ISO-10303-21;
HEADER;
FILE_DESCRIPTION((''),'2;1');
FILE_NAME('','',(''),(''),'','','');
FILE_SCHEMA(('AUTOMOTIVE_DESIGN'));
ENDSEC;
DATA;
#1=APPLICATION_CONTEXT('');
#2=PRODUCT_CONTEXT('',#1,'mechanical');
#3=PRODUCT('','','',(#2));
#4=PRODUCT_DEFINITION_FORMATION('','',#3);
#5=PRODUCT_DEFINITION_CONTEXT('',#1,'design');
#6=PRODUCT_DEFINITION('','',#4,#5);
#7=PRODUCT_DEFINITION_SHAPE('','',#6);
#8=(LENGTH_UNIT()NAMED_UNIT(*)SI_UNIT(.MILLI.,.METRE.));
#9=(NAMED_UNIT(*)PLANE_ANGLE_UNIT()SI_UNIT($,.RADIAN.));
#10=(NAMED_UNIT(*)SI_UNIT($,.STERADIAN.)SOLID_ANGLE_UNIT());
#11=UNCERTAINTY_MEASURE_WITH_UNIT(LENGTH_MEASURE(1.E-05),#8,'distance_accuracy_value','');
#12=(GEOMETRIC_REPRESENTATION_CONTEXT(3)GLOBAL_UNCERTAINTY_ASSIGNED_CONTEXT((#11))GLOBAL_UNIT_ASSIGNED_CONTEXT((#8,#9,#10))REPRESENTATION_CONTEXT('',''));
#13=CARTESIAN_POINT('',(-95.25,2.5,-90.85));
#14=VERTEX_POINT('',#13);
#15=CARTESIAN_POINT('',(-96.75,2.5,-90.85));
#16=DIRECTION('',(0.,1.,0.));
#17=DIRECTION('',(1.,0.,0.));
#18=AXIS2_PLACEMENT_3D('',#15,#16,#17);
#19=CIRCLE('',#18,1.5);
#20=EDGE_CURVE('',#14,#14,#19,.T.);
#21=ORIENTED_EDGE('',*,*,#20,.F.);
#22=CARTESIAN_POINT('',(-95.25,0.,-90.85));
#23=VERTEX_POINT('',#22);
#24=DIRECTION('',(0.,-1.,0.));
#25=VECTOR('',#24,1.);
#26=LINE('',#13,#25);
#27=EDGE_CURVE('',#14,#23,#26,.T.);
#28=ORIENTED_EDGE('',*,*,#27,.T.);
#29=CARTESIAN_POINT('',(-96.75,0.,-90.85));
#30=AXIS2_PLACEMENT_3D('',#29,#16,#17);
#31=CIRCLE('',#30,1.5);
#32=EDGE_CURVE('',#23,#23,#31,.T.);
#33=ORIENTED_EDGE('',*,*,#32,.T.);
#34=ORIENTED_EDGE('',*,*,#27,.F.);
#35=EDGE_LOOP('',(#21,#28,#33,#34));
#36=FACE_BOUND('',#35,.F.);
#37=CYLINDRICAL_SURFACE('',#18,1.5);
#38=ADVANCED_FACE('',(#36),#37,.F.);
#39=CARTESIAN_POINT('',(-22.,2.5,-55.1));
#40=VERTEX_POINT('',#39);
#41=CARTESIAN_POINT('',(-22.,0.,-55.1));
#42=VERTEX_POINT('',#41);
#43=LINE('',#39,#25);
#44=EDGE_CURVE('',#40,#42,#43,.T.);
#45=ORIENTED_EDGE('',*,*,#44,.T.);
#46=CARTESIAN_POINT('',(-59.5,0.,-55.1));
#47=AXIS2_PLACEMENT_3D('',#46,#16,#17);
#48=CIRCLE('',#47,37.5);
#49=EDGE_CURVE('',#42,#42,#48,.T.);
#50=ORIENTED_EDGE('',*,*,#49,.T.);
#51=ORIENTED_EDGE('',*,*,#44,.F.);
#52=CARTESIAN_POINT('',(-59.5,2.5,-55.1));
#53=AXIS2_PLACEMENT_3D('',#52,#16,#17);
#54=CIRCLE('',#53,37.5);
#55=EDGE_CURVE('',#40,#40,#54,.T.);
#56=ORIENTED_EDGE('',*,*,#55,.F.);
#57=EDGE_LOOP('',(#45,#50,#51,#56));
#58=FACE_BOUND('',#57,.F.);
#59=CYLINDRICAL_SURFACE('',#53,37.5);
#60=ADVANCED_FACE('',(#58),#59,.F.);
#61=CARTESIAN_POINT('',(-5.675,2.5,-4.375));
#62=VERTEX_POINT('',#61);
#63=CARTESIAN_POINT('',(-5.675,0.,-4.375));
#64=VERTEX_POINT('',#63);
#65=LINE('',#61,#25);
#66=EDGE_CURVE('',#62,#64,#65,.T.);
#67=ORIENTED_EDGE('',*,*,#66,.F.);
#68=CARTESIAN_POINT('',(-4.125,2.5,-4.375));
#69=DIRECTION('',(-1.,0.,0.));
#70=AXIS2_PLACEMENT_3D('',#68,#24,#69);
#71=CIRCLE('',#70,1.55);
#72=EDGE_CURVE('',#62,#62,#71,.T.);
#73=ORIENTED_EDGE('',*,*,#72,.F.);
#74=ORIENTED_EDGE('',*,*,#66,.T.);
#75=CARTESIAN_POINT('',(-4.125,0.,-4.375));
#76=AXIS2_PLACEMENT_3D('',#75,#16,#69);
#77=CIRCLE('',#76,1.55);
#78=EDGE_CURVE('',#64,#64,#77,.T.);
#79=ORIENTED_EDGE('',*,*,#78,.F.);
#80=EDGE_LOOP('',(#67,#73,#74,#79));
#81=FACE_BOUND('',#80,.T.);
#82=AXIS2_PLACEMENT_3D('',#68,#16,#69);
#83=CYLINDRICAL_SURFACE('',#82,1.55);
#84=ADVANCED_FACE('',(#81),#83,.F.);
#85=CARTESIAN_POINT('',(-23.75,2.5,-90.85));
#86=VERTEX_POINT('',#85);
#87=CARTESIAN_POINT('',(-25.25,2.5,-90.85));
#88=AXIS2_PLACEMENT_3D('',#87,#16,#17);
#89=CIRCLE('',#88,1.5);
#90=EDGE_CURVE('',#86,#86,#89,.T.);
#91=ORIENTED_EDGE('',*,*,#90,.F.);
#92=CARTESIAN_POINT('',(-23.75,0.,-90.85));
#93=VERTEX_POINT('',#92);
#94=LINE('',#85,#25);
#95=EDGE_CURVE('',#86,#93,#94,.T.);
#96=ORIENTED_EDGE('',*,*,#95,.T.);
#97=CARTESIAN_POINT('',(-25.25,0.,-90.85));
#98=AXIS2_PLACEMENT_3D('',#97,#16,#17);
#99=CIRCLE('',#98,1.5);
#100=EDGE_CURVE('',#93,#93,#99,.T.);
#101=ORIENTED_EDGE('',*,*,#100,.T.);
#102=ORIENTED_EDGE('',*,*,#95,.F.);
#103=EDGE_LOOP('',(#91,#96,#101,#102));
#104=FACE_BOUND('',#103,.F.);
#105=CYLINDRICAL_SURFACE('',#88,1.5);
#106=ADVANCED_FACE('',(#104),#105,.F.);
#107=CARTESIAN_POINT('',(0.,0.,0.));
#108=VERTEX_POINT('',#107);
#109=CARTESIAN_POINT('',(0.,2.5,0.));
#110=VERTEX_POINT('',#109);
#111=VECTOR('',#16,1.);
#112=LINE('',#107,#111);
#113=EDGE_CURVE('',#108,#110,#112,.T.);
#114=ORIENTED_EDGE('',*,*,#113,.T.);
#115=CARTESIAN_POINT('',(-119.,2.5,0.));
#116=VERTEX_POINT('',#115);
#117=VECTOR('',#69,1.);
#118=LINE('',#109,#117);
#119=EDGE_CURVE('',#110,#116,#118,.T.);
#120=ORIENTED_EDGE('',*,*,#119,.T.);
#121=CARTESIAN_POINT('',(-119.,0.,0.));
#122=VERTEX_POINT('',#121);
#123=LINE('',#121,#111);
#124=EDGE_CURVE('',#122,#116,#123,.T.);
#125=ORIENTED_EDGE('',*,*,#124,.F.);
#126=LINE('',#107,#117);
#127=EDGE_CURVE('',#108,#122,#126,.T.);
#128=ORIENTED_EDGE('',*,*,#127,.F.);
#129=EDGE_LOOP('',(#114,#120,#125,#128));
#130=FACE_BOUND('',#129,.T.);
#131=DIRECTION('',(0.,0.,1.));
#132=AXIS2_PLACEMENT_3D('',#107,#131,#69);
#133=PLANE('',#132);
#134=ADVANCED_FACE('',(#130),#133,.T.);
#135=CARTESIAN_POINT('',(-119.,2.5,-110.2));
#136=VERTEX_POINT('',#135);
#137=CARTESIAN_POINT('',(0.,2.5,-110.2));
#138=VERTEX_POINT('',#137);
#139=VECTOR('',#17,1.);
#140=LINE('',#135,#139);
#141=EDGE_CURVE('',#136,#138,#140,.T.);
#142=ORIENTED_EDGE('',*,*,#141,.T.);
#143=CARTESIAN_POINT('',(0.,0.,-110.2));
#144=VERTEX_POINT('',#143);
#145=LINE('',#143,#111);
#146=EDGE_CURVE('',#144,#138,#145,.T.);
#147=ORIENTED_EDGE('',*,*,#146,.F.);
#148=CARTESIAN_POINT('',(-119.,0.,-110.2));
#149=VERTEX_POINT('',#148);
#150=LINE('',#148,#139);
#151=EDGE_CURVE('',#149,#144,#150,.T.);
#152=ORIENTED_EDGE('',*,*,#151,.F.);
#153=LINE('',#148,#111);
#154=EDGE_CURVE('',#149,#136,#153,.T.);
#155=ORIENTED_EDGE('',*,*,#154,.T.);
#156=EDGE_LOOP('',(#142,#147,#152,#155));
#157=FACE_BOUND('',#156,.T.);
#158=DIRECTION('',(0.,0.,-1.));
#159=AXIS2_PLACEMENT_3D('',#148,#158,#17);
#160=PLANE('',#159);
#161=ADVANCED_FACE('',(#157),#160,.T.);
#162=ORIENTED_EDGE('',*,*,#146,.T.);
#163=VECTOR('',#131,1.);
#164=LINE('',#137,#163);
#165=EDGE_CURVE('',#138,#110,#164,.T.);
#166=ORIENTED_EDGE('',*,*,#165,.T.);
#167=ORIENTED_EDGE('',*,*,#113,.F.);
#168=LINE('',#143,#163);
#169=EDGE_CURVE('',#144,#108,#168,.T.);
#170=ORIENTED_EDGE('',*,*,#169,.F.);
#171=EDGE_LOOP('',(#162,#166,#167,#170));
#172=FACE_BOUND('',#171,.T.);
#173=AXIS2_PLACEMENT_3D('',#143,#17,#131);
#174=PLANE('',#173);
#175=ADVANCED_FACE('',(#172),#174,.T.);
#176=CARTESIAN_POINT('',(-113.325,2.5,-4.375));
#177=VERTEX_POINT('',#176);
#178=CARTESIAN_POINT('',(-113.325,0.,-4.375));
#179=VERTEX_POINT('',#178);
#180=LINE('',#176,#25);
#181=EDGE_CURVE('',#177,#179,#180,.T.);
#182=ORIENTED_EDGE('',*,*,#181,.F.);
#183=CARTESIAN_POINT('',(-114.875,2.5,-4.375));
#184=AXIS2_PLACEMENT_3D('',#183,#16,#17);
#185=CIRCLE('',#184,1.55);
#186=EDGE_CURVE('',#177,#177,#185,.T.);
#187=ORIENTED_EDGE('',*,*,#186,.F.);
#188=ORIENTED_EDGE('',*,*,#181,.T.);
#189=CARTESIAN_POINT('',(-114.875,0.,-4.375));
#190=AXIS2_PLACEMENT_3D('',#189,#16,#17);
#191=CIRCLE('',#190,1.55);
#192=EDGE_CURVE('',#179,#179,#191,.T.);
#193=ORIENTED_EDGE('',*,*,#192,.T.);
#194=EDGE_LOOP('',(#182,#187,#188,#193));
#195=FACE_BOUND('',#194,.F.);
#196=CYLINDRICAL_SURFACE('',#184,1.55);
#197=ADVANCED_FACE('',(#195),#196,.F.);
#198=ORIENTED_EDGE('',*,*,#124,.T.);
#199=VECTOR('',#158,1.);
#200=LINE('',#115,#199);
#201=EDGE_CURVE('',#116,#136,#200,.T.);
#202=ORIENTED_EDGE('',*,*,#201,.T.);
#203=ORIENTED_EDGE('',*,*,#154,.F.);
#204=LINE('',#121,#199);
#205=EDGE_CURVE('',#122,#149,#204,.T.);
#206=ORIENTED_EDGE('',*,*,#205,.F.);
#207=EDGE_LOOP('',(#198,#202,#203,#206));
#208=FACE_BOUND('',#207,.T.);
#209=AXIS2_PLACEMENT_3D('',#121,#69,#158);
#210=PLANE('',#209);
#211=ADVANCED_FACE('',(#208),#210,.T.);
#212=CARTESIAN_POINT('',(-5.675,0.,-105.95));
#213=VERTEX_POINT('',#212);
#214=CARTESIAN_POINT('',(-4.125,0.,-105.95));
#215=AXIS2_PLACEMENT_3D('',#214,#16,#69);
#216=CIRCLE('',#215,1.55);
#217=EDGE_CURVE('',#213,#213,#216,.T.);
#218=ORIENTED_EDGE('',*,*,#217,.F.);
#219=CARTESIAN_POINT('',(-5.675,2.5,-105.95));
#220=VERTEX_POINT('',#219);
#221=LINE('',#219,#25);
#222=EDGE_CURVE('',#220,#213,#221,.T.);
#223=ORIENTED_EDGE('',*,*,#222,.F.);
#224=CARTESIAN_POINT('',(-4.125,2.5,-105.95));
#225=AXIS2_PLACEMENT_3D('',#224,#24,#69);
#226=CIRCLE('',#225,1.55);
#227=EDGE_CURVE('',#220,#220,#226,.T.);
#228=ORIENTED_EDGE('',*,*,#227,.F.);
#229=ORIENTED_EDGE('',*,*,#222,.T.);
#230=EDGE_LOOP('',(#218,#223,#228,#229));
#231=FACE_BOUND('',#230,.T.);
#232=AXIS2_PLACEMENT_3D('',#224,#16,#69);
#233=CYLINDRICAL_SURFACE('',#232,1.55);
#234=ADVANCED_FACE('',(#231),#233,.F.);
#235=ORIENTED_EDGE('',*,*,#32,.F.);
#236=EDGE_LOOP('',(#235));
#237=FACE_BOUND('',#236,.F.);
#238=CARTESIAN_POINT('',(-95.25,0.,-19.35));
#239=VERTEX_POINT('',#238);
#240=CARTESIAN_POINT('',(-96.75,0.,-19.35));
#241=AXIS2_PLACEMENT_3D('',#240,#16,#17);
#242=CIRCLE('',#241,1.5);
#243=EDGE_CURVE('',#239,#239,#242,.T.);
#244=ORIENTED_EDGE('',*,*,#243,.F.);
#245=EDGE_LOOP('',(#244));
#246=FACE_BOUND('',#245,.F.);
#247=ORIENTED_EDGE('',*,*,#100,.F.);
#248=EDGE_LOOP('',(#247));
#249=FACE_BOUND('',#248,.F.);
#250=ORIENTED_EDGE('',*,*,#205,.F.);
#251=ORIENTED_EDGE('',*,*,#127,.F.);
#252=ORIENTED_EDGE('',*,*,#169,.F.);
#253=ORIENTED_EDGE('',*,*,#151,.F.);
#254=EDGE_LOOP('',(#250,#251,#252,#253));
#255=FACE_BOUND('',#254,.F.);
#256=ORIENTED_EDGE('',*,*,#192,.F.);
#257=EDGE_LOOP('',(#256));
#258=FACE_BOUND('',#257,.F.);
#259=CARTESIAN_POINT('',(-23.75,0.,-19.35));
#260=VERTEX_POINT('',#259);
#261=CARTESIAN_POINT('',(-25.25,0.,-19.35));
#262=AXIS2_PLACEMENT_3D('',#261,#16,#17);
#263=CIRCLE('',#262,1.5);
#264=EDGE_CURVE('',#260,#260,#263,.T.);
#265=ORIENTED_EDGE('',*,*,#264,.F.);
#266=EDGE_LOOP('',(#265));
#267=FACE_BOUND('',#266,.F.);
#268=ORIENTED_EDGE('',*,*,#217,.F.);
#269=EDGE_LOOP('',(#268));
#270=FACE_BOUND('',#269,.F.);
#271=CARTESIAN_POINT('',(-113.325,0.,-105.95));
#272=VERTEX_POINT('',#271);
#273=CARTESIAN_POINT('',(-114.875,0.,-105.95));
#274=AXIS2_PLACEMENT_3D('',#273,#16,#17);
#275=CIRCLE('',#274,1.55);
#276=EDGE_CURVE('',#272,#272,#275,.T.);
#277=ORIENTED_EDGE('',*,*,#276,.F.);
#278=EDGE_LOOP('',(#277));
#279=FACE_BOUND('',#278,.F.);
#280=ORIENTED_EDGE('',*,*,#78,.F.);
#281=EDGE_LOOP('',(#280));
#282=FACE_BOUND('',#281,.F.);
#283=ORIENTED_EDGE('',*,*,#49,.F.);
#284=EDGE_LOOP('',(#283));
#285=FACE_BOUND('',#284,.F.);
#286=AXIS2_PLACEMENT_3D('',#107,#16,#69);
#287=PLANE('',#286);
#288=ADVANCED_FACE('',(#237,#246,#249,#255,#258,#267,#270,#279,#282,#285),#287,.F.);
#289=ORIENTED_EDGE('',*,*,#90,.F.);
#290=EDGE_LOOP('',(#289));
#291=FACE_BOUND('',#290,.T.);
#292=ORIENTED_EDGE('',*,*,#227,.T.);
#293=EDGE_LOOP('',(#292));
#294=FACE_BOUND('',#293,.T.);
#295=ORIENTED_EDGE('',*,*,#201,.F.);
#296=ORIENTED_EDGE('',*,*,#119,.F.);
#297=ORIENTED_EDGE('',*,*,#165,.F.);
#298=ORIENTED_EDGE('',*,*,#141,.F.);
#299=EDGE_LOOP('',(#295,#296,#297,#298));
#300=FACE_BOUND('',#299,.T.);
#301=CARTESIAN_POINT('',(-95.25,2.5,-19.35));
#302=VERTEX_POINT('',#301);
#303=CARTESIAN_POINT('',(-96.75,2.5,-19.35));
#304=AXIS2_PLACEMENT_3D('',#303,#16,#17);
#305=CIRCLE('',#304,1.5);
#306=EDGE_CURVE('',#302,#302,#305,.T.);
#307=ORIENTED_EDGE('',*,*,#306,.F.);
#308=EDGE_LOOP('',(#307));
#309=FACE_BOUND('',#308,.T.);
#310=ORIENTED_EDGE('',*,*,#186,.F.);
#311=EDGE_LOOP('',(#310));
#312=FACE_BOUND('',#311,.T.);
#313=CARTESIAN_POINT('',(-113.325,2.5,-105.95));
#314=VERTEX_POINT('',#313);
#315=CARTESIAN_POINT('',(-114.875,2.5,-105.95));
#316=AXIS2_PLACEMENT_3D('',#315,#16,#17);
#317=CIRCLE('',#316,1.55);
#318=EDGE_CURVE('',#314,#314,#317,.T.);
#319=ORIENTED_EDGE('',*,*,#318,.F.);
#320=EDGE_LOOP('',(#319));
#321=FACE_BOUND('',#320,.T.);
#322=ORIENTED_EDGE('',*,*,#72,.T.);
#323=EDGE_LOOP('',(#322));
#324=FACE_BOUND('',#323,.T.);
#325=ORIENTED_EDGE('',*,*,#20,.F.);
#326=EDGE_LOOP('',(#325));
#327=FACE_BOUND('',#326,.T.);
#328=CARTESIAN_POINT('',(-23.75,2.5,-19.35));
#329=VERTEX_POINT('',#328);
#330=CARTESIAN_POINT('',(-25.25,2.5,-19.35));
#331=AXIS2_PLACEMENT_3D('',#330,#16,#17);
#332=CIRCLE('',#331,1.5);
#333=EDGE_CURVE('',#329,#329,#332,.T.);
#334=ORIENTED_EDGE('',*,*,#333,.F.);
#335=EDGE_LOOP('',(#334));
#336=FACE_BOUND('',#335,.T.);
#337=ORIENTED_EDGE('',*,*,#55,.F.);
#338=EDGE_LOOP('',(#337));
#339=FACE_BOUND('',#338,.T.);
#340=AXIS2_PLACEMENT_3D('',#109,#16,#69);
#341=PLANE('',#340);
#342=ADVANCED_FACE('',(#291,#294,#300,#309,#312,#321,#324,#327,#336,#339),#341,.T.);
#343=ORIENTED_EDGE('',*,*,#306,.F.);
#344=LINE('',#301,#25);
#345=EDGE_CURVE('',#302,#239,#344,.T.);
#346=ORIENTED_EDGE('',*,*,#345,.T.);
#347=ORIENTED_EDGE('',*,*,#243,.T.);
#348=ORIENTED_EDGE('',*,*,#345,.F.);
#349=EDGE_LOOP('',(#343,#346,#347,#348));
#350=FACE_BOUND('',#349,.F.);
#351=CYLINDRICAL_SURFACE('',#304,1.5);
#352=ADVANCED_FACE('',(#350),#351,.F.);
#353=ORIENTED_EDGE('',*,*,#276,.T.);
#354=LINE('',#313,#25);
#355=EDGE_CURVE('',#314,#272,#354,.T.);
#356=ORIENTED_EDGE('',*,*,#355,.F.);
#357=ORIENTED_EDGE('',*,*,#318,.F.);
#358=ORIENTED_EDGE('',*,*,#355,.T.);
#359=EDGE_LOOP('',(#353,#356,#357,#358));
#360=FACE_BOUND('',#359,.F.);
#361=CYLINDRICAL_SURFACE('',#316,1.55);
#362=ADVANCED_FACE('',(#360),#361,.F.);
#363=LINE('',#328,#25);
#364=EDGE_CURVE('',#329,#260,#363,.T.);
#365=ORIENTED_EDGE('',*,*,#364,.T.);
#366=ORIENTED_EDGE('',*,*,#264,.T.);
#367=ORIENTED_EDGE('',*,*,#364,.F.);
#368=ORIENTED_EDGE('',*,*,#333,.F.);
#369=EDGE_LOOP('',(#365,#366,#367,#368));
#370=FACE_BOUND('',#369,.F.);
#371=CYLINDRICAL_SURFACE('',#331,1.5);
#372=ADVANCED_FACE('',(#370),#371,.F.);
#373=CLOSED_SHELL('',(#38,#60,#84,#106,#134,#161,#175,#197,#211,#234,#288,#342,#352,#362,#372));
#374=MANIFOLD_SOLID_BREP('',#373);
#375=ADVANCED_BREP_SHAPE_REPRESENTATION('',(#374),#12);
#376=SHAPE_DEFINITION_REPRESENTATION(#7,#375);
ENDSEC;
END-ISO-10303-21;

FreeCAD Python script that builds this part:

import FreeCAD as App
import Part
import Sketcher

V = App.Vector


def add_polygon(sketch, points):
    """Adds a closed chain of lines whose ends are joined by coincident constraints."""
    first, n = sketch.GeometryCount, len(points)
    for a, b in zip(points, points[1:] + points[:1]):
        sketch.addGeometry(Part.LineSegment(App.Vector(*a, 0), App.Vector(*b, 0)), False)
    for i in range(n):
        sketch.addConstraint(Sketcher.Constraint("Coincident", first + i, 2, first + (i + 1) % n, 1))

doc = App.newDocument("Part")
params = doc.addObject("Spreadsheet::Sheet", "Params")
for row, (alias, value) in enumerate([
    ("sketch1_width", "119 mm"),
    ("sketch1_height", "110.2 mm"),
    ("pad1_length", "2.5 mm"),
    ("sketch2_diameter", "3.1 mm"),
    ("sketch3_diameter", "3 mm"),
    ("sketch3_diameter2", "75 mm"),
], start=1):
    params.set(f"A{row}", alias)
    params.set(f"B{row}", "=" + value)
    params.setAlias(f"B{row}", alias)

body = doc.addObject("PartDesign::Body", "Body")

# Sketch on XZ plane
sketch1 = doc.addObject("Sketcher::SketchObject", "Sketch")
body.addObject(sketch1)
sketch1.AttachmentSupport = (doc.XZ_Plane, [""])
sketch1.MapMode = "FlatFace"
add_polygon(sketch1, [(-119, 0), (0, 0), (0, -110), (-119, -110)])  # lines 0-3
sketch1.addConstraint(Sketcher.Constraint("Horizontal", 0))
sketch1.addConstraint(Sketcher.Constraint("Vertical", 1))
sketch1.addConstraint(Sketcher.Constraint("Horizontal", 2))
sketch1.addConstraint(Sketcher.Constraint("Vertical", 3))
sketch1.addConstraint(Sketcher.Constraint("Coincident", 0, 2, -1, 1))
sketch1.addConstraint(Sketcher.Constraint("DistanceX", 0, 1, 0, 2, 119.0))
sketch1.addConstraint(Sketcher.Constraint("DistanceY", 1, 2, 1, 1, 110.2))
sketch1.setExpression("Constraints[9]", "Params.sketch1_width")
sketch1.setExpression("Constraints[10]", "Params.sketch1_height")
pad1 = doc.addObject("PartDesign::Pad", "Pad")
body.addObject(pad1)
pad1.Profile = sketch1
pad1.setExpression("Length", "Params.pad1_length")
pad1.Reversed = True

# Sketch on XZ plane
sketch2 = doc.addObject("Sketcher::SketchObject", "Sketch001")
body.addObject(sketch2)
sketch2.AttachmentSupport = (doc.XZ_Plane, [""])
sketch2.MapMode = "FlatFace"
sketch2.AttachmentOffset = App.Placement(V(0, 0, -2.5), App.Rotation())
sketch2.addGeometry(Part.Circle(V(-114.9, -4.4, 0), V(0, 0, 1), 1.6), False)
sketch2.addGeometry(Part.Circle(V(-114.9, -106, 0), V(0, 0, 1), 1.6), False)
sketch2.addConstraint(Sketcher.Constraint("Equal", 0, 1))
sketch2.addConstraint(Sketcher.Constraint("Vertical", 0, 3, 1, 3))
sketch2.addConstraint(Sketcher.Constraint("Diameter", 0, 3.1))
sketch2.addConstraint(Sketcher.Constraint("DistanceY", 0, 3, -1, 1, 4.375))
sketch2.addConstraint(Sketcher.Constraint("DistanceY", 1, 3, -1, 1, 105.95))
sketch2.addConstraint(Sketcher.Constraint("DistanceX", 0, 3, -1, 1, 114.875))
sketch2.setExpression("Constraints[2]", "Params.sketch2_diameter")
pocket1 = doc.addObject("PartDesign::Pocket", "Pocket")
body.addObject(pocket1)
pocket1.Profile = sketch2
pocket1.Type = "ThroughAll"
pocket1.Reversed = True
doc.recompute()

datumplane = doc.addObject("PartDesign::Plane", "DatumPlane")
body.addObject(datumplane)
datumplane.AttachmentSupport = (doc.YZ_Plane, [""])
datumplane.MapMode = "FlatFace"
datumplane.AttachmentOffset = App.Placement(V(0, 0, -59.5), App.Rotation())
mirrored = doc.addObject("PartDesign::Mirrored", "Mirrored")
body.addObject(mirrored)
mirrored.Originals = [pocket1]
mirrored.MirrorPlane = (datumplane, [""])
body.Tip = mirrored

# Sketch on XZ plane
sketch3 = doc.addObject("Sketcher::SketchObject", "Sketch002")
body.addObject(sketch3)
sketch3.AttachmentSupport = (doc.XZ_Plane, [""])
sketch3.MapMode = "FlatFace"
sketch3.AttachmentOffset = App.Placement(V(0, 0, -2.5), App.Rotation())
sketch3.addGeometry(Part.Circle(V(-59.5, -55.1, 0), V(0, 0, 1), 37.5), False)
sketch3.addGeometry(Part.Circle(V(-96.8, -90.8, 0), V(0, 0, 1), 1.5), False)
sketch3.addGeometry(Part.Circle(V(-25.2, -90.8, 0), V(0, 0, 1), 1.5), False)
sketch3.addGeometry(Part.Circle(V(-25.2, -19.4, 0), V(0, 0, 1), 1.5), False)
sketch3.addGeometry(Part.Circle(V(-96.8, -19.4, 0), V(0, 0, 1), 1.5), False)
sketch3.addConstraint(Sketcher.Constraint("Equal", 1, 2))
sketch3.addConstraint(Sketcher.Constraint("Equal", 2, 3))
sketch3.addConstraint(Sketcher.Constraint("Equal", 3, 4))
sketch3.addConstraint(Sketcher.Constraint("Horizontal", 1, 3, 2, 3))
sketch3.addConstraint(Sketcher.Constraint("Horizontal", 3, 3, 4, 3))
sketch3.addConstraint(Sketcher.Constraint("Vertical", 2, 3, 3, 3))
sketch3.addConstraint(Sketcher.Constraint("Vertical", 1, 3, 4, 3))
sketch3.addConstraint(Sketcher.Constraint("Diameter", 1, 3.0))
sketch3.addConstraint(Sketcher.Constraint("Diameter", 0, 75.0))
sketch3.addConstraint(Sketcher.Constraint("DistanceX", 1, 3, 2, 3, 71.5))
sketch3.addConstraint(Sketcher.Constraint("DistanceY", 2, 3, 3, 3, 71.5))
sketch3.addConstraint(Sketcher.Constraint("DistanceX", 0, 3, -1, 1, 59.5))
sketch3.addConstraint(Sketcher.Constraint("DistanceY", 0, 3, -1, 1, 55.1))
sketch3.addConstraint(Sketcher.Constraint("DistanceX", 1, 3, -1, 1, 96.75))
sketch3.addConstraint(Sketcher.Constraint("DistanceY", 1, 3, -1, 1, 90.85))
sketch3.setExpression("Constraints[7]", "Params.sketch3_diameter")
sketch3.setExpression("Constraints[8]", "Params.sketch3_diameter2")
pocket2 = doc.addObject("PartDesign::Pocket", "Pocket001")
body.addObject(pocket2)
pocket2.Profile = sketch3
pocket2.Type = "ThroughAll"
pocket2.Reversed = True

doc.recompute()
